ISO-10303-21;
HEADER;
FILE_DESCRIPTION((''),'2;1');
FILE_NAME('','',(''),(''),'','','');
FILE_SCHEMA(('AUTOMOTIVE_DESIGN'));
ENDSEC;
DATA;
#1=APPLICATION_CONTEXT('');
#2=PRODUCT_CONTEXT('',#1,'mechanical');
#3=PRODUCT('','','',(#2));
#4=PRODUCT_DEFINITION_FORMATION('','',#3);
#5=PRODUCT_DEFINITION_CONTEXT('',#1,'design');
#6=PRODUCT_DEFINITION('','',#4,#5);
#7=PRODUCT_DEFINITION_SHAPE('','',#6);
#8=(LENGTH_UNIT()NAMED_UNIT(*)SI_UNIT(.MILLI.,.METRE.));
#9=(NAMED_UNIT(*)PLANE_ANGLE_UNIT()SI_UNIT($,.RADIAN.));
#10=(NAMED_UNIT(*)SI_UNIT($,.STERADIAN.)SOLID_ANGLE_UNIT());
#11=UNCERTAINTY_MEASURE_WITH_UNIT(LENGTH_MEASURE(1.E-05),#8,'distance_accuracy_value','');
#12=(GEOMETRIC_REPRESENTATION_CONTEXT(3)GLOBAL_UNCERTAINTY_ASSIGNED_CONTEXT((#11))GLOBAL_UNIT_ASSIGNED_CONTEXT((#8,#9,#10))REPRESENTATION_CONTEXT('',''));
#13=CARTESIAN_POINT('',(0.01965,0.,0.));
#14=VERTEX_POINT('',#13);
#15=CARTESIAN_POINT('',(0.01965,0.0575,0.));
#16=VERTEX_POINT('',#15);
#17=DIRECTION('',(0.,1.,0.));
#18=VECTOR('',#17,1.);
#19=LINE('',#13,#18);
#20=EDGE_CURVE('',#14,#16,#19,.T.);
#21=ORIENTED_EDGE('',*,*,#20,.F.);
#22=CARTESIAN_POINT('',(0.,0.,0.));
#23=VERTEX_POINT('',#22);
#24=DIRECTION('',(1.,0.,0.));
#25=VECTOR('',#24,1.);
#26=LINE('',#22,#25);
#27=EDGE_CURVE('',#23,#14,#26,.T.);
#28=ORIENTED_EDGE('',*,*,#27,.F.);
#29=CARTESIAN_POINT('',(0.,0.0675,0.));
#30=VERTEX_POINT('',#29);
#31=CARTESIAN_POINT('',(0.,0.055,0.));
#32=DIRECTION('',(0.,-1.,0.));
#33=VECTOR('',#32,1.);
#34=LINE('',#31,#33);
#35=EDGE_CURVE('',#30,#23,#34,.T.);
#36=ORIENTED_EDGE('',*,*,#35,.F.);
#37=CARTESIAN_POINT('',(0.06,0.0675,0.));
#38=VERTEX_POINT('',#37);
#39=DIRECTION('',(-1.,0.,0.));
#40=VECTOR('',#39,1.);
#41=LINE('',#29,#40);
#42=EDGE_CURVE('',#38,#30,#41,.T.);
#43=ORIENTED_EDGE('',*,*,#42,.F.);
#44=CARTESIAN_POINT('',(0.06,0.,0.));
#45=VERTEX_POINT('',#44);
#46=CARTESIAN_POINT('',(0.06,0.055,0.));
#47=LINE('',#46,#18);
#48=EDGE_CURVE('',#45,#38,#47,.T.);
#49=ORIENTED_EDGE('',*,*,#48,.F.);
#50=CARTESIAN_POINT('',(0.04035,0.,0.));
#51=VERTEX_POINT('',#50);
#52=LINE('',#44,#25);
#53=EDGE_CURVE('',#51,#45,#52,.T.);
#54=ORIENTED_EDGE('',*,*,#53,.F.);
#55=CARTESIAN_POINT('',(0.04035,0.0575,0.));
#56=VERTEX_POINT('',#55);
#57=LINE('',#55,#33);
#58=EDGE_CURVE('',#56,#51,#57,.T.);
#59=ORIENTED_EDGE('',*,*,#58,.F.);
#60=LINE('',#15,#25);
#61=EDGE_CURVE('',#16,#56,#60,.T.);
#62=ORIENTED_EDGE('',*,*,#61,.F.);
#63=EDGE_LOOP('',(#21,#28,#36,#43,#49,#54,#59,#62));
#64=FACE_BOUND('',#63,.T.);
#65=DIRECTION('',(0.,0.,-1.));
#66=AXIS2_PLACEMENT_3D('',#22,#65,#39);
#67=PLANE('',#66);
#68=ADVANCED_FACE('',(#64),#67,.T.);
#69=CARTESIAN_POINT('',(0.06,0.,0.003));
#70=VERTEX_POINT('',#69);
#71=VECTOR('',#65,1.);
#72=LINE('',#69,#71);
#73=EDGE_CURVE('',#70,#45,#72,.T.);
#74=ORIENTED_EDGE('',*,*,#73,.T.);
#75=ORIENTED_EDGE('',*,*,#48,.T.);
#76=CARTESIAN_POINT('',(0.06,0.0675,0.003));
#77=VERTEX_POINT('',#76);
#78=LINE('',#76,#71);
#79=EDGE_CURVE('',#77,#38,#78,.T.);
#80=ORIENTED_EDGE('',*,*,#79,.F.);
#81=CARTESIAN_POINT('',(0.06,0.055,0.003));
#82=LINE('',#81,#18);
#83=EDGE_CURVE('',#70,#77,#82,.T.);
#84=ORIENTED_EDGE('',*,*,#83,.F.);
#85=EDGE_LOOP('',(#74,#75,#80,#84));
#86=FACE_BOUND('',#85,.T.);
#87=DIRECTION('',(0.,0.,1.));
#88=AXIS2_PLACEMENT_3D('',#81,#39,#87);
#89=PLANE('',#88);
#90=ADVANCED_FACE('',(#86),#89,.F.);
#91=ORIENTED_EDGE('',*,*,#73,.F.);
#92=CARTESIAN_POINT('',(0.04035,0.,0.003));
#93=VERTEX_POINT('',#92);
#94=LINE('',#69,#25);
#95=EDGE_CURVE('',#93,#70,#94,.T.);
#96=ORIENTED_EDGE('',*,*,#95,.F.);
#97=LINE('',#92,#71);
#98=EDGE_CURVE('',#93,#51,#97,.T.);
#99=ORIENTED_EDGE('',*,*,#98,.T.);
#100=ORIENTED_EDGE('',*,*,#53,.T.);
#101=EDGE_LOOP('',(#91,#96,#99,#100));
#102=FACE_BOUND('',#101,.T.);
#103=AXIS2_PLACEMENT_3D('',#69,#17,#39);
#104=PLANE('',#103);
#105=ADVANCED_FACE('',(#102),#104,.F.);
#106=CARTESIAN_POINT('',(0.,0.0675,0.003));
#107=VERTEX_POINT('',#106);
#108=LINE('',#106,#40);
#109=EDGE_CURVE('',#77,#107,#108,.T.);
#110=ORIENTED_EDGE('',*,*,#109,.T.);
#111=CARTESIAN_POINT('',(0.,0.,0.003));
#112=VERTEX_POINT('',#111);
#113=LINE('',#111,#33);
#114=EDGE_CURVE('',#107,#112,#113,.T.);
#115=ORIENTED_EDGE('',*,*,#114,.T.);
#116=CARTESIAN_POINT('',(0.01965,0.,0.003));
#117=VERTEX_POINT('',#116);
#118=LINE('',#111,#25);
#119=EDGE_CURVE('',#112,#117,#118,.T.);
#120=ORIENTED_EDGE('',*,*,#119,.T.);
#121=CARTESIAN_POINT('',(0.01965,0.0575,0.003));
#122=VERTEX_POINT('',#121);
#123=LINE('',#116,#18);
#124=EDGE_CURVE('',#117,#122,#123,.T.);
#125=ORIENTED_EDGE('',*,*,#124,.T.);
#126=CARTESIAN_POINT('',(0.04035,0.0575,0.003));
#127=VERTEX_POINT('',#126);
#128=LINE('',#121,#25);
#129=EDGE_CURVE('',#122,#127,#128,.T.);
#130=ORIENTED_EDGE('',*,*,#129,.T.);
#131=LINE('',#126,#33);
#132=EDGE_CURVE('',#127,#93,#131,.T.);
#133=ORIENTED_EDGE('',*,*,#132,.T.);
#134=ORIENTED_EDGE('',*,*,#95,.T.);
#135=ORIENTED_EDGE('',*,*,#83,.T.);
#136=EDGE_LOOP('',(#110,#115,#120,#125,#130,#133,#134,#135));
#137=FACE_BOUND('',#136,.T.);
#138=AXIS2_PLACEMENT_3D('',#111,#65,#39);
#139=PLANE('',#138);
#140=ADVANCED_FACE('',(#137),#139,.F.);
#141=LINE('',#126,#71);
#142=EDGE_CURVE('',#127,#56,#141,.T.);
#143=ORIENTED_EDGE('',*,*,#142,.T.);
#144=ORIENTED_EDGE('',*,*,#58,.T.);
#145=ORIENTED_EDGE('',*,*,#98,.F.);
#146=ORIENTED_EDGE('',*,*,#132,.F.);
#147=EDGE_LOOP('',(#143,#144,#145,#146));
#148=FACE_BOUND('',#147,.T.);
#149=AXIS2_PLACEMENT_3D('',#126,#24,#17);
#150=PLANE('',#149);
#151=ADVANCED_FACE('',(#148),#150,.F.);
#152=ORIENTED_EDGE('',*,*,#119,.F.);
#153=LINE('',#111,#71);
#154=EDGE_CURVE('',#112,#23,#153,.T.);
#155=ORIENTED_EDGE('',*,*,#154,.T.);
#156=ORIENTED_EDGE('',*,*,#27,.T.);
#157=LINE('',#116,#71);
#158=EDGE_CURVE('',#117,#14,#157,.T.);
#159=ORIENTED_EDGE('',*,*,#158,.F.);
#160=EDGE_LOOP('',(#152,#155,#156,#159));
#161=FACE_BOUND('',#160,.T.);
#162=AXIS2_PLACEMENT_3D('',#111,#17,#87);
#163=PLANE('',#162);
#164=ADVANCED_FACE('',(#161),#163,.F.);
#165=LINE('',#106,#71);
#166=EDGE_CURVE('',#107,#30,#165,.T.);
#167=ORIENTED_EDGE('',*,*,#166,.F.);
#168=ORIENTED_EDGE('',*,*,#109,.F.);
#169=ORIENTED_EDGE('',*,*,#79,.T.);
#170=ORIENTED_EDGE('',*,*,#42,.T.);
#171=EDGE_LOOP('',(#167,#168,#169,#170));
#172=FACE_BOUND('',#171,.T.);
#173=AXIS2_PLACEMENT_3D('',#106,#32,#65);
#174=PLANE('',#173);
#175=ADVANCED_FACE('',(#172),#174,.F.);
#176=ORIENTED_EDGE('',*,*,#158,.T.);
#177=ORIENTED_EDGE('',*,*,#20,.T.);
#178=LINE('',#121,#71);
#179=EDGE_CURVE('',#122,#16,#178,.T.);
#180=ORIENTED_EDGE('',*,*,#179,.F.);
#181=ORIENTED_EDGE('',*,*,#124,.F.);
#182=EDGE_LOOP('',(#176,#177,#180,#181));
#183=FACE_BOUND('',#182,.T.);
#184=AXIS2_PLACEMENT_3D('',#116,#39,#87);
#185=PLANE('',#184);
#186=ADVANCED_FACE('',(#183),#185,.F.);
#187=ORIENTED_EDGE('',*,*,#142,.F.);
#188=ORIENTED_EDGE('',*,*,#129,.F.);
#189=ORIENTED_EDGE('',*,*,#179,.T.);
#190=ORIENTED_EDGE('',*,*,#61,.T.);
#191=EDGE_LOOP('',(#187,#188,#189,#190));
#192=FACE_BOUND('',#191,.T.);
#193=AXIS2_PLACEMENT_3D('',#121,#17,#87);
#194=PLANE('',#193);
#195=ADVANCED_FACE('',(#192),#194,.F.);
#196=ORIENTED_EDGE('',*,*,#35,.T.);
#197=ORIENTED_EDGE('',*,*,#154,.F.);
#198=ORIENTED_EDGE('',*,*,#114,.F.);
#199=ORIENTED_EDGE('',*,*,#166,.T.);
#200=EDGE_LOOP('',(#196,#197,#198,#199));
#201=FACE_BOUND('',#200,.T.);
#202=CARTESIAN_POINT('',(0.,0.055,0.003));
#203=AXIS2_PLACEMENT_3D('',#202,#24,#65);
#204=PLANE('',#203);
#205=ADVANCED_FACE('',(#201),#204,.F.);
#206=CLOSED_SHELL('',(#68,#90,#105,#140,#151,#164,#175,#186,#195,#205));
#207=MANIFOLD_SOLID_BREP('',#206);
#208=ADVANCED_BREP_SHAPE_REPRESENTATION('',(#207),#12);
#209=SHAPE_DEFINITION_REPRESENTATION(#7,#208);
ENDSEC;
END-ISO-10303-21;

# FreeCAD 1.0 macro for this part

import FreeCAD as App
import Part
import Sketcher

V = App.Vector

doc = App.newDocument("Part")
body = doc.addObject("PartDesign::Body", "Body")

sketch1 = doc.addObject("Sketcher::SketchObject", "Sketch")
body.addObject(sketch1)
sketch1.AttachmentSupport = (doc.XY_Plane, [""])
sketch1.MapMode = "FlatFace"
sketch1.addGeometry(Part.LineSegment(V(0, 0, 0), V(0.02, 0, 0)), False)
sketch1.addGeometry(Part.LineSegment(V(0.02, 0, 0), V(0.02, 0.058, 0)), False)
sketch1.addGeometry(Part.LineSegment(V(0.02, 0.058, 0), V(0.04, 0.058, 0)), False)
sketch1.addGeometry(Part.LineSegment(V(0.04, 0.058, 0), V(0.04, 0, 0)), False)
sketch1.addGeometry(Part.LineSegment(V(0.04, 0, 0), V(0.06, 0, 0)), False)
sketch1.addGeometry(Part.LineSegment(V(0.06, 0, 0), V(0.06, 0.068, 0)), False)
sketch1.addGeometry(Part.LineSegment(V(0.06, 0.068, 0), V(0, 0.068, 0)), False)
sketch1.addGeometry(Part.LineSegment(V(0, 0.068, 0), V(0, 0, 0)), False)
sketch1.addConstraint(Sketcher.Constraint("Coincident", 0, 2, 1, 1))
sketch1.addConstraint(Sketcher.Constraint("Coincident", 1, 2, 2, 1))
sketch1.addConstraint(Sketcher.Constraint("Coincident", 2, 2, 3, 1))
sketch1.addConstraint(Sketcher.Constraint("Coincident", 3, 2, 4, 1))
sketch1.addConstraint(Sketcher.Constraint("Coincident", 4, 2, 5, 1))
sketch1.addConstraint(Sketcher.Constraint("Coincident", 5, 2, 6, 1))
sketch1.addConstraint(Sketcher.Constraint("Coincident", 6, 2, 7, 1))
sketch1.addConstraint(Sketcher.Constraint("Coincident", 7, 2, 0, 1))
sketch1.addConstraint(Sketcher.Constraint("Horizontal", 0))
sketch1.addConstraint(Sketcher.Constraint("Vertical", 1))
sketch1.addConstraint(Sketcher.Constraint("Horizontal", 2))
sketch1.addConstraint(Sketcher.Constraint("Vertical", 3))
sketch1.addConstraint(Sketcher.Constraint("Horizontal", 4))
sketch1.addConstraint(Sketcher.Constraint("Vertical", 5))
sketch1.addConstraint(Sketcher.Constraint("Horizontal", 6))
sketch1.addConstraint(Sketcher.Constraint("Vertical", 7))
sketch1.addConstraint(Sketcher.Constraint("Coincident", 7, 2, -1, 1))
sketch1.addConstraint(Sketcher.Constraint("PointOnObject", 3, 2, -1))
sketch1.addConstraint(Sketcher.Constraint("Equal", 0, 4))
sketch1.addConstraint(Sketcher.Constraint("DistanceX", 6, 2, 6, 1, 0.06))
sketch1.addConstraint(Sketcher.Constraint("DistanceY", 2, 2, 5, 2, 0.01))
sketch1.addConstraint(Sketcher.Constraint("DistanceX", 2, 1, 2, 2, 0.0207))
sketch1.addConstraint(Sketcher.Constraint("DistanceY", 1, 1, 1, 2, 0.0575))
pad1 = doc.addObject("PartDesign::Pad", "Pad")
body.addObject(pad1)
pad1.Profile = sketch1
pad1.Length = 0.003

doc.recompute()
